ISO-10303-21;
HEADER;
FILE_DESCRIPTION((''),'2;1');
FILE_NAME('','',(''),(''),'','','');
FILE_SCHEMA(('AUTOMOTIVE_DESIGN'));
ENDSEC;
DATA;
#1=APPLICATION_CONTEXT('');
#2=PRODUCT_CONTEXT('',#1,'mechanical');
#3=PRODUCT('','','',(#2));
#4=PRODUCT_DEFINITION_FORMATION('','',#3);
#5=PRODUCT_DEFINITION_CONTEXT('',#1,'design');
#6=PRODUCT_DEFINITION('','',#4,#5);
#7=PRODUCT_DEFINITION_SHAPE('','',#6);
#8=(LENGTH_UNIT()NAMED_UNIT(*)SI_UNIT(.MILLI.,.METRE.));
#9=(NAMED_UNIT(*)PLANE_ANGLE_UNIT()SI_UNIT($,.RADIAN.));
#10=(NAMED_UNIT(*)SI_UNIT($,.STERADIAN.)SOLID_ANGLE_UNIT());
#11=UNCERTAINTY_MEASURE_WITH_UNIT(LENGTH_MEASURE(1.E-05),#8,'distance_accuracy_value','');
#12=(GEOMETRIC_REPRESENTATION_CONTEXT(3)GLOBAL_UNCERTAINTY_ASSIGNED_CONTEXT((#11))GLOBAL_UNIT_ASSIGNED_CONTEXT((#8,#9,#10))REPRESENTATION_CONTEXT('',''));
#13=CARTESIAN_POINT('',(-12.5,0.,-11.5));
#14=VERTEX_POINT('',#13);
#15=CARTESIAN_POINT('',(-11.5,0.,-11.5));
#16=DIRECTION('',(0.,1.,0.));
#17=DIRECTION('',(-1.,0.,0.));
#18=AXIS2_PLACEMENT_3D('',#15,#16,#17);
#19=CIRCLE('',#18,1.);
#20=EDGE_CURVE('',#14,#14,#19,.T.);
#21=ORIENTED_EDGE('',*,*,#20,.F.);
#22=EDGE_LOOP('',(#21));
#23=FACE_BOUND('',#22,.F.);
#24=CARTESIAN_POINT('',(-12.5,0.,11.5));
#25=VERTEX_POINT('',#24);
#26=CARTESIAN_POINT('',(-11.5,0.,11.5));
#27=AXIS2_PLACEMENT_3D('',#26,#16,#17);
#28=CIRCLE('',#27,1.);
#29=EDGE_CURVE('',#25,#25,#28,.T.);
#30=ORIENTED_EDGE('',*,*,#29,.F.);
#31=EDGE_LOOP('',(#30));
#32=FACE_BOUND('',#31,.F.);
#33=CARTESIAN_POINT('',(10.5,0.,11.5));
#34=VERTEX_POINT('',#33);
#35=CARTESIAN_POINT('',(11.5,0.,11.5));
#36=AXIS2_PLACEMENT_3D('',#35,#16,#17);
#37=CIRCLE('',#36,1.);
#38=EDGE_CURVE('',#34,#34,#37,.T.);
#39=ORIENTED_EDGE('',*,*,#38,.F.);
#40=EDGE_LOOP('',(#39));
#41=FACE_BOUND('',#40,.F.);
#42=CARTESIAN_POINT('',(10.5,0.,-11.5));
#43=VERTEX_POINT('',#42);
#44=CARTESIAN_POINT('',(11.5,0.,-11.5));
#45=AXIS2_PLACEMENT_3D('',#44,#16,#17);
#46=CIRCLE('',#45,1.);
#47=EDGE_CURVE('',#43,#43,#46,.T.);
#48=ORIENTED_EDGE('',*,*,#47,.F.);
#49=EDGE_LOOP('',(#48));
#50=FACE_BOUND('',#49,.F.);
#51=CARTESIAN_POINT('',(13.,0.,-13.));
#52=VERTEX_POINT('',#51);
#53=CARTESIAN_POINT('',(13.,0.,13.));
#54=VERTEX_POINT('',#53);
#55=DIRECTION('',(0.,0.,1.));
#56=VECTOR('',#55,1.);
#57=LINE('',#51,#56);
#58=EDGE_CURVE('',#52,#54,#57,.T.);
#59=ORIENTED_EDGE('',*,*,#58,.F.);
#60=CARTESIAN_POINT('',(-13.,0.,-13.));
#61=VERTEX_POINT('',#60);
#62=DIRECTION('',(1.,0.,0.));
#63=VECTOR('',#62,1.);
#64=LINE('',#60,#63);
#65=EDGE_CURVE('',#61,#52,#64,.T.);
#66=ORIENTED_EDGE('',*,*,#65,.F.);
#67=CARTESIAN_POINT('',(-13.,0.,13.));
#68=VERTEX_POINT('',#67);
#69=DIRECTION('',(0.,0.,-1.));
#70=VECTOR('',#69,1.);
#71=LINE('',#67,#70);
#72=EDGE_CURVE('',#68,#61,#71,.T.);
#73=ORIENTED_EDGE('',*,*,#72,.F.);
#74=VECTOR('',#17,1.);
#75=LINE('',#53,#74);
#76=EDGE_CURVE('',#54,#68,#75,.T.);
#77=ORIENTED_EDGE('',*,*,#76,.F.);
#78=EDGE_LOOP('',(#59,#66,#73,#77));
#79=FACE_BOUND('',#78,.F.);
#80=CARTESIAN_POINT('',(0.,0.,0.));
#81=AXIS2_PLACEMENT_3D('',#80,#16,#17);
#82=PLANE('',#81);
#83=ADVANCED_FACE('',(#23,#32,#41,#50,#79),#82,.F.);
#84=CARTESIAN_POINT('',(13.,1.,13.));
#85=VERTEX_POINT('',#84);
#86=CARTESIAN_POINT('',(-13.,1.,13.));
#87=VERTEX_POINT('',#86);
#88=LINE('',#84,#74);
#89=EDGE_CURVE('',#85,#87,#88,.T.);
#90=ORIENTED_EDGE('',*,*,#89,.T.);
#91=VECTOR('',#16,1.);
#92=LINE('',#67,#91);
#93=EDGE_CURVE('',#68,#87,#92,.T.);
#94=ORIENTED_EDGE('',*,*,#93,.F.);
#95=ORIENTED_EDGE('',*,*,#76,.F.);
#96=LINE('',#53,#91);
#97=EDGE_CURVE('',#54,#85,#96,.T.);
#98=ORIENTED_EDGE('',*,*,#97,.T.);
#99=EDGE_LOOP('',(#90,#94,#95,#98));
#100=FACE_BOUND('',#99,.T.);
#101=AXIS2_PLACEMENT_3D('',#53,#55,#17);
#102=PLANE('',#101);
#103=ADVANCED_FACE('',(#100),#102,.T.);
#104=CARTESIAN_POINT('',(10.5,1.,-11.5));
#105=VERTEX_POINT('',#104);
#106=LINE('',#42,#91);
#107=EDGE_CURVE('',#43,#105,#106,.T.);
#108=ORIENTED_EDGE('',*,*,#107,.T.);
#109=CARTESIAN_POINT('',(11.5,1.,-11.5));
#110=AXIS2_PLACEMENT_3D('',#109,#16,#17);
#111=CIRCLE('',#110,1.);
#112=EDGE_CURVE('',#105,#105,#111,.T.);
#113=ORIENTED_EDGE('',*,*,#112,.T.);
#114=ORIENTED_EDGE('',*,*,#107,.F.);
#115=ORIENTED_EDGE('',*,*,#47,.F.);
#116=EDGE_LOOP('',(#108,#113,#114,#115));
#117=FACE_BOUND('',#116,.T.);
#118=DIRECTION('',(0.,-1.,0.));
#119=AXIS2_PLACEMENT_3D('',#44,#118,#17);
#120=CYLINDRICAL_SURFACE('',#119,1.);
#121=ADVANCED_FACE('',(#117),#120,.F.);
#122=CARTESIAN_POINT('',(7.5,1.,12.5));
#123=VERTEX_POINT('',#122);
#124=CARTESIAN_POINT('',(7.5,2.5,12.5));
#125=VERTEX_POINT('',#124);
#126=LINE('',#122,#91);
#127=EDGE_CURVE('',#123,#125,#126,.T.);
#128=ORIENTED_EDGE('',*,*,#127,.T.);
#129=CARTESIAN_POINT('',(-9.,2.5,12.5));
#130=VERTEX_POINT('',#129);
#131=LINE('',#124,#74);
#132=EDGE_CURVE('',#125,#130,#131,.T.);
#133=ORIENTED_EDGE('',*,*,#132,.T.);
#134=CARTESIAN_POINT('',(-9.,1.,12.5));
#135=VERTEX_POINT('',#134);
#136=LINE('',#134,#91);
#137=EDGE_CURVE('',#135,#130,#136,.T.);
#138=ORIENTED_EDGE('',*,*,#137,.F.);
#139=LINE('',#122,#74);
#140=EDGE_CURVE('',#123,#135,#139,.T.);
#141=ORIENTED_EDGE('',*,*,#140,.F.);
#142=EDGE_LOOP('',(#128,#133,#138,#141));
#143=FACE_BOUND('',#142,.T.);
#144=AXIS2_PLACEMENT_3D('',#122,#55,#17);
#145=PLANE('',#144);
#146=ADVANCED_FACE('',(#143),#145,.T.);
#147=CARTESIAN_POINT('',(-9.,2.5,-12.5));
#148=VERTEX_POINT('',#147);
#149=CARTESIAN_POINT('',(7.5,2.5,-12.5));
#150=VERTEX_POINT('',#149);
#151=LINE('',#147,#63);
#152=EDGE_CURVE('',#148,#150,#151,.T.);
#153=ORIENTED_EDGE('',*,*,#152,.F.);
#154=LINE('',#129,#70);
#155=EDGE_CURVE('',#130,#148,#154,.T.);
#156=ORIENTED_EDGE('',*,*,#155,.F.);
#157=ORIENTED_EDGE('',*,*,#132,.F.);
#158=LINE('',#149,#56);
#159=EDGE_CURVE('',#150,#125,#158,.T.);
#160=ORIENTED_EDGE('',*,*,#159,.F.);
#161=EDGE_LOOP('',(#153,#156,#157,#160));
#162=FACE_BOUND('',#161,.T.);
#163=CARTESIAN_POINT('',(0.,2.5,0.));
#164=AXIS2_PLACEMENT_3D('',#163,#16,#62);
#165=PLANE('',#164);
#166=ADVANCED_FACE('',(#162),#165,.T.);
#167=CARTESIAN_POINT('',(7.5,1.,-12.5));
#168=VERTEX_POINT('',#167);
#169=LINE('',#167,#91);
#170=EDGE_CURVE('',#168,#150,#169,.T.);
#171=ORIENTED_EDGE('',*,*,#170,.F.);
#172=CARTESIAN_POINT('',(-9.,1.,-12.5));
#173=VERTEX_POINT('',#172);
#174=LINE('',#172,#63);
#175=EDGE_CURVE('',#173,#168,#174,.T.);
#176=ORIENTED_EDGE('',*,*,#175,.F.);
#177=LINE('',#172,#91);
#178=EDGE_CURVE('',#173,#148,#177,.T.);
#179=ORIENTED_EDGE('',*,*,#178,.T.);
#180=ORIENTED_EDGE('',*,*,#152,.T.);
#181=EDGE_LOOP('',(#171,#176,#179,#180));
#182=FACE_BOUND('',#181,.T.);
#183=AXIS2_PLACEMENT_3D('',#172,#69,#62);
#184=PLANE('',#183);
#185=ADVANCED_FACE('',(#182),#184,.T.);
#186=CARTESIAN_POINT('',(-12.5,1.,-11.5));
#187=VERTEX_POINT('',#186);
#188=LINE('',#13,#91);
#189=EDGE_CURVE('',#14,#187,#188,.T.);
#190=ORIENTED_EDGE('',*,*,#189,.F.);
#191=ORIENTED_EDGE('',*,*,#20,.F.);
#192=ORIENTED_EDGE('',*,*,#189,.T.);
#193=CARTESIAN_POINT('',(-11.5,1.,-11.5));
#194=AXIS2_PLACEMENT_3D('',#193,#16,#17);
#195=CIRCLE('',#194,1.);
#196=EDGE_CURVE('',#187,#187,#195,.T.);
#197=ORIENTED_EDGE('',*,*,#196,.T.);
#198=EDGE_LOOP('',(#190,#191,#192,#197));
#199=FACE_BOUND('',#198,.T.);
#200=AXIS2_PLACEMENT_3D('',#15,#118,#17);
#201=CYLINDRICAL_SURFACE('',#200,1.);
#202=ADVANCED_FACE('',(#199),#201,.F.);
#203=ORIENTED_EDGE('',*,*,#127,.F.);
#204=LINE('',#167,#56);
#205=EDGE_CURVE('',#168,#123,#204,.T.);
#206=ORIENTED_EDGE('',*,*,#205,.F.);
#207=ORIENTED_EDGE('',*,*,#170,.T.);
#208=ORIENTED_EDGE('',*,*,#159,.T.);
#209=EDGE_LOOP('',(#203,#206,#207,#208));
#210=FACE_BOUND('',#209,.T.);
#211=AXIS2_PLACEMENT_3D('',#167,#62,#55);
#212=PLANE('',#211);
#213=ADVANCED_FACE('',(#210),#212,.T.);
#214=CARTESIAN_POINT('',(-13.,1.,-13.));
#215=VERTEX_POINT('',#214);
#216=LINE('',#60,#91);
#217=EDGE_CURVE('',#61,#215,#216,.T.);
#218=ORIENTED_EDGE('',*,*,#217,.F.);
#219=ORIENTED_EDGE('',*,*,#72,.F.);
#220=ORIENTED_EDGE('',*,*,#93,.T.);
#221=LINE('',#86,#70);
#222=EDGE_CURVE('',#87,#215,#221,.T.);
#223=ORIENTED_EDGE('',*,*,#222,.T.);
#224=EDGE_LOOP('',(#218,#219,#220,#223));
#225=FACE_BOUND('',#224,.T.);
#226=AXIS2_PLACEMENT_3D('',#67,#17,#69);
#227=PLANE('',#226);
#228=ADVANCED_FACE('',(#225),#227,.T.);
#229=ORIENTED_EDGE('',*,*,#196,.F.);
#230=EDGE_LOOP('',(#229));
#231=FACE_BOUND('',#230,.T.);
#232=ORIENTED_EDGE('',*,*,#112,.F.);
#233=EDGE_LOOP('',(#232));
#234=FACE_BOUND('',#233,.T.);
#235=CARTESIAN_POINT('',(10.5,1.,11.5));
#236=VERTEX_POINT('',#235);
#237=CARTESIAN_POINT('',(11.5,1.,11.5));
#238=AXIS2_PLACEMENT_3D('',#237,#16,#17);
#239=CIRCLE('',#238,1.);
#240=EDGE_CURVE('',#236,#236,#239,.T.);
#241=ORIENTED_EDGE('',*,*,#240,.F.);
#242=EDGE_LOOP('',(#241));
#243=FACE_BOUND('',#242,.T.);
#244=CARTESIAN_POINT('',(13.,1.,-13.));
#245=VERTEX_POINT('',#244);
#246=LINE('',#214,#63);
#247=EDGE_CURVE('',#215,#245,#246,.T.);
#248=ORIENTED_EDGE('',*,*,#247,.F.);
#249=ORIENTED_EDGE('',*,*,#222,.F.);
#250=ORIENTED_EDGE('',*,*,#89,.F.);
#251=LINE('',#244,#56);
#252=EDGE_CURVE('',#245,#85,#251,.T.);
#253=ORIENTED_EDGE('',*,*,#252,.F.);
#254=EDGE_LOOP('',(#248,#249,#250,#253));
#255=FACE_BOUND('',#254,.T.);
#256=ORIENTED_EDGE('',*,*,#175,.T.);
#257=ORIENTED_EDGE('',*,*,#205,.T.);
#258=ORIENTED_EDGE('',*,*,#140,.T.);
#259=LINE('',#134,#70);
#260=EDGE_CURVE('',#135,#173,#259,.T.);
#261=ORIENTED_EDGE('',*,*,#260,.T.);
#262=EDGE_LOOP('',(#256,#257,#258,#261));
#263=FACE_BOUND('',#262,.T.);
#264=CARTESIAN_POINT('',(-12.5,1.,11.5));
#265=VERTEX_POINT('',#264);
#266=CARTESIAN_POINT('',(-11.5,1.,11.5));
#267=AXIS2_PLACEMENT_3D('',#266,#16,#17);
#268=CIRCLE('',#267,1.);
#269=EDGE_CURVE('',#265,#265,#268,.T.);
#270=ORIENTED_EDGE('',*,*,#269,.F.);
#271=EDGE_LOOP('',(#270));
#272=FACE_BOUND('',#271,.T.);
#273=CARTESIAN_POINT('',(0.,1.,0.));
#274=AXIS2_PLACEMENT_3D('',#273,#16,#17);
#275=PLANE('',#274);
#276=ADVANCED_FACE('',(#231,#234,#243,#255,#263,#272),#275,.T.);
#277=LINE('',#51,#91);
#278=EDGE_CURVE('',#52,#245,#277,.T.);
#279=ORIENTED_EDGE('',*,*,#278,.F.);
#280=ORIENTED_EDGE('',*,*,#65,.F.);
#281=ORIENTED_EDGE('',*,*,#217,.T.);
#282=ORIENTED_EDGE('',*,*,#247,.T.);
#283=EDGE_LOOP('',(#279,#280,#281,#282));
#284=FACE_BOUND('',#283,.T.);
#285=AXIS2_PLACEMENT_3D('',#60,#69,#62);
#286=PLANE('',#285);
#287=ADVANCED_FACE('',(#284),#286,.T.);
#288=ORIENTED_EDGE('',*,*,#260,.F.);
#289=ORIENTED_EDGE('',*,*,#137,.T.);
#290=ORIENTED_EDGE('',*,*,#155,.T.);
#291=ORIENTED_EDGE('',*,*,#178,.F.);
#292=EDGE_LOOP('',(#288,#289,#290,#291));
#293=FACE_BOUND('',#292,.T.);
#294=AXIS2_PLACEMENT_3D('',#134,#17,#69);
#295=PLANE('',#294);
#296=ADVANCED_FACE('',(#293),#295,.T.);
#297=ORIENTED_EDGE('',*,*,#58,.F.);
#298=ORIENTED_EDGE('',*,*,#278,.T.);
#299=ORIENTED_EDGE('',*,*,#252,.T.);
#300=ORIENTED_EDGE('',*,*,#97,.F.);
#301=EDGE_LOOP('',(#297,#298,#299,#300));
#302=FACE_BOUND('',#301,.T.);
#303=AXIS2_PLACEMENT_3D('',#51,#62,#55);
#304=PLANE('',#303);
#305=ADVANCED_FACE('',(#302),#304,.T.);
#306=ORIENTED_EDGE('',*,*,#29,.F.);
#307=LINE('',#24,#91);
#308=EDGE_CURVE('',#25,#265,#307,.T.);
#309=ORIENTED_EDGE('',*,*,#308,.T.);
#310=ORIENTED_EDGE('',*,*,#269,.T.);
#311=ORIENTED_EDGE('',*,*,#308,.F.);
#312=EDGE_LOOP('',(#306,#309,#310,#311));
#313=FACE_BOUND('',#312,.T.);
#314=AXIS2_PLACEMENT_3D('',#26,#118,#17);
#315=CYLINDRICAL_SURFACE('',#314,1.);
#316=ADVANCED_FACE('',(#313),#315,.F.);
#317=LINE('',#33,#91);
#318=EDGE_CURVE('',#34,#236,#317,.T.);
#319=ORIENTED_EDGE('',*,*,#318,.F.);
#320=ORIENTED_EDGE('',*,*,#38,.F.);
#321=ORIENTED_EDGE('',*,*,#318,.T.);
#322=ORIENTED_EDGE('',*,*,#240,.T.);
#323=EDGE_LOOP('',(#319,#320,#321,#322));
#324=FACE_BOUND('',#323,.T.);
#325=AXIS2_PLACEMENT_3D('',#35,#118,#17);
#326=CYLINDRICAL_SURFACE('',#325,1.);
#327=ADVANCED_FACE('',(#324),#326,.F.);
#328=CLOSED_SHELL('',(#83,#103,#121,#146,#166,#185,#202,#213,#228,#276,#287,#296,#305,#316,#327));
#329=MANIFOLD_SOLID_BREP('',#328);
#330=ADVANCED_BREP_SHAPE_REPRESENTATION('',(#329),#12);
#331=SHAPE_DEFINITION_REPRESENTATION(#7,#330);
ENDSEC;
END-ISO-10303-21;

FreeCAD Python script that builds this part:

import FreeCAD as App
import Part
import Sketcher
from FreeCAD import Vector
Q = App.Units.Quantity

doc = App.newDocument("Part")
body = doc.addObject("PartDesign::Body", "Body")

# Sketch on XZ plane
sketch1 = body.newObject("Sketcher::SketchObject", "Sketch")
sketch1.AttachmentSupport = (doc.getObject("XZ_Plane"), [""])
sketch1.MapMode = "FlatFace"
sketch1.addGeometry(Part.LineSegment(Vector(-13, 13, 0), Vector(13, 13, 0)), False)
sketch1.addGeometry(Part.LineSegment(Vector(13, 13, 0), Vector(13, -13, 0)), False)
sketch1.addGeometry(Part.LineSegment(Vector(13, -13, 0), Vector(-13, -13, 0)), False)
sketch1.addGeometry(Part.LineSegment(Vector(-13, -13, 0), Vector(-13, 13, 0)), False)
sketch1.addGeometry(Part.Circle(Vector(11.5, -11.5, 0), Vector(0, 0, 1), 1), False)
sketch1.addGeometry(Part.Circle(Vector(-11.5, -11.5, 0), Vector(0, 0, 1), 1), False)
sketch1.addGeometry(Part.Circle(Vector(11.5, 11.5, 0), Vector(0, 0, 1), 1), False)
sketch1.addGeometry(Part.Circle(Vector(-11.5, 11.5, 0), Vector(0, 0, 1), 1), False)
sketch1.addConstraint(Sketcher.Constraint("Coincident", 0, 2, 1, 1))
sketch1.addConstraint(Sketcher.Constraint("Coincident", 1, 2, 2, 1))
sketch1.addConstraint(Sketcher.Constraint("Coincident", 2, 2, 3, 1))
sketch1.addConstraint(Sketcher.Constraint("Coincident", 3, 2, 0, 1))
sketch1.addConstraint(Sketcher.Constraint("Horizontal", 0))
sketch1.addConstraint(Sketcher.Constraint("Vertical", 1))
sketch1.addConstraint(Sketcher.Constraint("Horizontal", 2))
sketch1.addConstraint(Sketcher.Constraint("Vertical", 3))
sketch1.addConstraint(Sketcher.Constraint("Equal", 4, 5))
sketch1.addConstraint(Sketcher.Constraint("Equal", 5, 6))
sketch1.addConstraint(Sketcher.Constraint("Equal", 6, 7))
sketch1.addConstraint(Sketcher.Constraint("Symmetric", 5, 3, 6, 3, -1, 1))
sketch1.addConstraint(Sketcher.Constraint("Symmetric", 4, 3, 7, 3, -1, 1))
sketch1.addConstraint(Sketcher.Constraint("Symmetric", 0, 2, 2, 2, -1, 1))
sketch1.addConstraint(Sketcher.Constraint("Symmetric", 4, 3, 5, 3, -2))
sketch1.addConstraint(Sketcher.Constraint("Equal", 2, 1))
sketch1.addConstraint(Sketcher.Constraint("Diameter", 4, Q("2 mm")))
sketch1.addConstraint(Sketcher.Constraint("DistanceX", 0, 1, 0, 2, Q("26 mm")))
sketch1.addConstraint(Sketcher.Constraint("DistanceX", 6, 3, 0, 2, Q("1.5 mm")))
sketch1.addConstraint(Sketcher.Constraint("DistanceY", 6, 3, 0, 2, Q("1.5 mm")))
pad1 = body.newObject("PartDesign::Pad", "Pad")
pad1.Profile = sketch1
pad1.Length = 1
pad1.Reversed = True

# Sketch on XZ plane
sketch2 = body.newObject("Sketcher::SketchObject", "Sketch001")
sketch2.AttachmentSupport = (doc.getObject("XZ_Plane"), [""])
sketch2.MapMode = "FlatFace"
sketch2.AttachmentOffset = App.Placement(Vector(0, 0, -1), App.Rotation())
sketch2.addGeometry(Part.LineSegment(Vector(-9, 12, 0), Vector(8, 12, 0)), False)
sketch2.addGeometry(Part.LineSegment(Vector(8, 12, 0), Vector(8, -12, 0)), False)
sketch2.addGeometry(Part.LineSegment(Vector(8, -12, 0), Vector(-9, -12, 0)), False)
sketch2.addGeometry(Part.LineSegment(Vector(-9, -12, 0), Vector(-9, 12, 0)), False)
sketch2.addConstraint(Sketcher.Constraint("Coincident", 0, 2, 1, 1))
sketch2.addConstraint(Sketcher.Constraint("Coincident", 1, 2, 2, 1))
sketch2.addConstraint(Sketcher.Constraint("Coincident", 2, 2, 3, 1))
sketch2.addConstraint(Sketcher.Constraint("Coincident", 3, 2, 0, 1))
sketch2.addConstraint(Sketcher.Constraint("Horizontal", 0))
sketch2.addConstraint(Sketcher.Constraint("Vertical", 1))
sketch2.addConstraint(Sketcher.Constraint("Horizontal", 2))
sketch2.addConstraint(Sketcher.Constraint("Vertical", 3))
sketch2.addConstraint(Sketcher.Constraint("DistanceY", 1, 2, 1, 1, Q("25 mm")))
sketch2.addConstraint(Sketcher.Constraint("DistanceX", 0, 1, 0, 2, Q("16.5 mm")))
sketch2.addConstraint(Sketcher.Constraint("DistanceX", 2, 2, -1, 1, Q("9 mm")))
sketch2.addConstraint(Sketcher.Constraint("DistanceY", -1, 1, 0, 2, Q("12.5 mm")))
pad2 = body.newObject("PartDesign::Pad", "Pad001")
pad2.Profile = sketch2
pad2.Length = 1.5
pad2.Reversed = True

doc.recompute()
